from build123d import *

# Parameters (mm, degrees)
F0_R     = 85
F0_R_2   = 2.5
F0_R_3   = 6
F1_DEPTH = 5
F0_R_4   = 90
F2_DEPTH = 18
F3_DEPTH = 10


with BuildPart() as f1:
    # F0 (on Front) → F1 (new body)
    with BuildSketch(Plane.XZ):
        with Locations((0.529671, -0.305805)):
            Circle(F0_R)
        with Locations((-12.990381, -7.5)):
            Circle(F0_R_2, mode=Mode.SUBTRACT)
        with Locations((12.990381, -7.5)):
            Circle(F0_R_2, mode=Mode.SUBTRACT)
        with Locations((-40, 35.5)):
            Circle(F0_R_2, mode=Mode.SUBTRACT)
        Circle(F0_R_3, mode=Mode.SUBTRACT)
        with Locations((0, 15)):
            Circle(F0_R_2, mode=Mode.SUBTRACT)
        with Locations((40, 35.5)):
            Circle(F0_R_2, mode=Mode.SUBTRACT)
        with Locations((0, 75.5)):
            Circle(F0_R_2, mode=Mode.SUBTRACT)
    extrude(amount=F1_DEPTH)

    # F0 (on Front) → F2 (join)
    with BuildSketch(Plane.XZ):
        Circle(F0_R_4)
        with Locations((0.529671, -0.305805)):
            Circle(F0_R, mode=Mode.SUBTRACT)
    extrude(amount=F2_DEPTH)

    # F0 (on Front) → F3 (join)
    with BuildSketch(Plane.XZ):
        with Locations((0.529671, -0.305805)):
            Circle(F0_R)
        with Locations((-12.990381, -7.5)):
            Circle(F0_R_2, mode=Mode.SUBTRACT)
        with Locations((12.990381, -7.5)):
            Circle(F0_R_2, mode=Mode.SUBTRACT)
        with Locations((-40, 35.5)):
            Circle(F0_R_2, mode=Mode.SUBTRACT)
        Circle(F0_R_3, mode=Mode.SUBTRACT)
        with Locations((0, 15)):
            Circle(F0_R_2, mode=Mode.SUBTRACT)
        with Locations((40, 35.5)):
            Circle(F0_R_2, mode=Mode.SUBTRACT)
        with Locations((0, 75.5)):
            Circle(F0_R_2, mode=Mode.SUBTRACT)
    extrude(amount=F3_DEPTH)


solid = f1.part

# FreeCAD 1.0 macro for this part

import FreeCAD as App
import Part
import Sketcher

doc = App.newDocument("Part")
body = doc.addObject("PartDesign::Body", "Body")

sketch1 = body.newObject("Sketcher::SketchObject", "Sketch")
sketch1.AttachmentSupport = (doc.getObject("XZ_Plane"), [""])
sketch1.MapMode = "FlatFace"
sketch1.addGeometry([
    Part.Circle(App.Vector(0.5, -0.3, 0), App.Vector(0, 0, 1), 85),
    Part.Circle(App.Vector(-13, -7.5, 0), App.Vector(0, 0, 1), 2.5),
    Part.Circle(App.Vector(0, 0, 0), App.Vector(0, 0, 1), 6),
    Part.Circle(App.Vector(13, -7.5, 0), App.Vector(0, 0, 1), 2.5),
    Part.Circle(App.Vector(0, 15, 0), App.Vector(0, 0, 1), 2.5),
    Part.Circle(App.Vector(-40, 35.5, 0), App.Vector(0, 0, 1), 2.5),
    Part.Circle(App.Vector(40, 35.5, 0), App.Vector(0, 0, 1), 2.5),
    Part.Circle(App.Vector(0, 75.5, 0), App.Vector(0, 0, 1), 2.5),
], False)
sketch1.addConstraint([
    Sketcher.Constraint("Coincident", 2, 3, -1, 1),
    Sketcher.Constraint("Equal", 1, 3),
    Sketcher.Constraint("Equal", 3, 4),
    Sketcher.Constraint("Equal", 4, 5),
    Sketcher.Constraint("Equal", 5, 6),
    Sketcher.Constraint("Equal", 6, 7),
    Sketcher.Constraint("Symmetric", 1, 3, 3, 3, -2),
    Sketcher.Constraint("Symmetric", 5, 3, 6, 3, -2),
    Sketcher.Constraint("PointOnObject", 4, 3, -2),
    Sketcher.Constraint("PointOnObject", 7, 3, -2),
    Sketcher.Constraint("Diameter", 0, 170.0),
    Sketcher.Constraint("Diameter", 1, 5.0),
    Sketcher.Constraint("Diameter", 2, 12.0),
    Sketcher.Constraint("DistanceY", -1, 1, 4, 3, 15.0),
    Sketcher.Constraint("DistanceX", 5, 3, -1, 1, 40.0),
    Sketcher.Constraint("DistanceY", 1, 3, 5, 3, 43.0),
    Sketcher.Constraint("DistanceY", 5, 3, 7, 3, 40.0),
    Sketcher.Constraint("DistanceY", 1, 3, -1, 1, 7.5),
    Sketcher.Constraint("DistanceX", -1, 1, 0, 3, 0.529671),
    Sketcher.Constraint("DistanceX", 1, 3, -1, 1, 12.990381),
    Sketcher.Constraint("DistanceY", 0, 3, -1, 1, 0.305805),
])
pad1 = body.newObject("PartDesign::Pad", "Pad")
pad1.Profile = sketch1
pad1.Length = 5

sketch2 = body.newObject("Sketcher::SketchObject", "Sketch001")
sketch2.AttachmentSupport = (doc.getObject("XZ_Plane"), [""])
sketch2.MapMode = "FlatFace"
sketch2.addGeometry([
    Part.Circle(App.Vector(0, 0, 0), App.Vector(0, 0, 1), 90),
    Part.Circle(App.Vector(1, 0, 0), App.Vector(0, 0, 1), 85),
], False)
sketch2.addConstraint([
    Sketcher.Constraint("Coincident", 0, 3, -1, 1),
    Sketcher.Constraint("Diameter", 0, 180.0),
    Sketcher.Constraint("Diameter", 1, 170.0),
    Sketcher.Constraint("DistanceX", -1, 1, 1, 3, 0.529671),
    Sketcher.Constraint("DistanceY", 1, 3, -1, 1, 0.305805),
])
pad2 = body.newObject("PartDesign::Pad", "Pad001")
pad2.Profile = sketch2
pad2.Length = 18

sketch3 = body.newObject("Sketcher::SketchObject", "Sketch002")
sketch3.AttachmentSupport = (doc.getObject("XZ_Plane"), [""])
sketch3.MapMode = "FlatFace"
sketch3.addGeometry([
    Part.Circle(App.Vector(0.5, -0.3, 0), App.Vector(0, 0, 1), 85),
    Part.Circle(App.Vector(-13, -7.5, 0), App.Vector(0, 0, 1), 2.5),
    Part.Circle(App.Vector(0, 0, 0), App.Vector(0, 0, 1), 6),
    Part.Circle(App.Vector(13, -7.5, 0), App.Vector(0, 0, 1), 2.5),
    Part.Circle(App.Vector(0, 15, 0), App.Vector(0, 0, 1), 2.5),
    Part.Circle(App.Vector(-40, 35.5, 0), App.Vector(0, 0, 1), 2.5),
    Part.Circle(App.Vector(40, 35.5, 0), App.Vector(0, 0, 1), 2.5),
    Part.Circle(App.Vector(0, 75.5, 0), App.Vector(0, 0, 1), 2.5),
], False)
sketch3.addConstraint([
    Sketcher.Constraint("Coincident", 2, 3, -1, 1),
    Sketcher.Constraint("Equal", 1, 3),
    Sketcher.Constraint("Equal", 3, 4),
    Sketcher.Constraint("Equal", 4, 5),
    Sketcher.Constraint("Equal", 5, 6),
    Sketcher.Constraint("Equal", 6, 7),
    Sketcher.Constraint("Symmetric", 1, 3, 3, 3, -2),
    Sketcher.Constraint("Symmetric", 5, 3, 6, 3, -2),
    Sketcher.Constraint("PointOnObject", 4, 3, -2),
    Sketcher.Constraint("PointOnObject", 7, 3, -2),
    Sketcher.Constraint("Diameter", 0, 170.0),
    Sketcher.Constraint("Diameter", 1, 5.0),
    Sketcher.Constraint("Diameter", 2, 12.0),
    Sketcher.Constraint("DistanceY", -1, 1, 4, 3, 15.0),
    Sketcher.Constraint("DistanceX", 5, 3, -1, 1, 40.0),
    Sketcher.Constraint("DistanceY", 1, 3, 5, 3, 43.0),
    Sketcher.Constraint("DistanceY", 5, 3, 7, 3, 40.0),
    Sketcher.Constraint("DistanceY", 1, 3, -1, 1, 7.5),
    Sketcher.Constraint("DistanceX", -1, 1, 0, 3, 0.529671),
    Sketcher.Constraint("DistanceX", 1, 3, -1, 1, 12.990381),
    Sketcher.Constraint("DistanceY", 0, 3, -1, 1, 0.305805),
])
pad3 = body.newObject("PartDesign::Pad", "Pad002")
pad3.Profile = sketch3
pad3.Length = 10

doc.recompute()
